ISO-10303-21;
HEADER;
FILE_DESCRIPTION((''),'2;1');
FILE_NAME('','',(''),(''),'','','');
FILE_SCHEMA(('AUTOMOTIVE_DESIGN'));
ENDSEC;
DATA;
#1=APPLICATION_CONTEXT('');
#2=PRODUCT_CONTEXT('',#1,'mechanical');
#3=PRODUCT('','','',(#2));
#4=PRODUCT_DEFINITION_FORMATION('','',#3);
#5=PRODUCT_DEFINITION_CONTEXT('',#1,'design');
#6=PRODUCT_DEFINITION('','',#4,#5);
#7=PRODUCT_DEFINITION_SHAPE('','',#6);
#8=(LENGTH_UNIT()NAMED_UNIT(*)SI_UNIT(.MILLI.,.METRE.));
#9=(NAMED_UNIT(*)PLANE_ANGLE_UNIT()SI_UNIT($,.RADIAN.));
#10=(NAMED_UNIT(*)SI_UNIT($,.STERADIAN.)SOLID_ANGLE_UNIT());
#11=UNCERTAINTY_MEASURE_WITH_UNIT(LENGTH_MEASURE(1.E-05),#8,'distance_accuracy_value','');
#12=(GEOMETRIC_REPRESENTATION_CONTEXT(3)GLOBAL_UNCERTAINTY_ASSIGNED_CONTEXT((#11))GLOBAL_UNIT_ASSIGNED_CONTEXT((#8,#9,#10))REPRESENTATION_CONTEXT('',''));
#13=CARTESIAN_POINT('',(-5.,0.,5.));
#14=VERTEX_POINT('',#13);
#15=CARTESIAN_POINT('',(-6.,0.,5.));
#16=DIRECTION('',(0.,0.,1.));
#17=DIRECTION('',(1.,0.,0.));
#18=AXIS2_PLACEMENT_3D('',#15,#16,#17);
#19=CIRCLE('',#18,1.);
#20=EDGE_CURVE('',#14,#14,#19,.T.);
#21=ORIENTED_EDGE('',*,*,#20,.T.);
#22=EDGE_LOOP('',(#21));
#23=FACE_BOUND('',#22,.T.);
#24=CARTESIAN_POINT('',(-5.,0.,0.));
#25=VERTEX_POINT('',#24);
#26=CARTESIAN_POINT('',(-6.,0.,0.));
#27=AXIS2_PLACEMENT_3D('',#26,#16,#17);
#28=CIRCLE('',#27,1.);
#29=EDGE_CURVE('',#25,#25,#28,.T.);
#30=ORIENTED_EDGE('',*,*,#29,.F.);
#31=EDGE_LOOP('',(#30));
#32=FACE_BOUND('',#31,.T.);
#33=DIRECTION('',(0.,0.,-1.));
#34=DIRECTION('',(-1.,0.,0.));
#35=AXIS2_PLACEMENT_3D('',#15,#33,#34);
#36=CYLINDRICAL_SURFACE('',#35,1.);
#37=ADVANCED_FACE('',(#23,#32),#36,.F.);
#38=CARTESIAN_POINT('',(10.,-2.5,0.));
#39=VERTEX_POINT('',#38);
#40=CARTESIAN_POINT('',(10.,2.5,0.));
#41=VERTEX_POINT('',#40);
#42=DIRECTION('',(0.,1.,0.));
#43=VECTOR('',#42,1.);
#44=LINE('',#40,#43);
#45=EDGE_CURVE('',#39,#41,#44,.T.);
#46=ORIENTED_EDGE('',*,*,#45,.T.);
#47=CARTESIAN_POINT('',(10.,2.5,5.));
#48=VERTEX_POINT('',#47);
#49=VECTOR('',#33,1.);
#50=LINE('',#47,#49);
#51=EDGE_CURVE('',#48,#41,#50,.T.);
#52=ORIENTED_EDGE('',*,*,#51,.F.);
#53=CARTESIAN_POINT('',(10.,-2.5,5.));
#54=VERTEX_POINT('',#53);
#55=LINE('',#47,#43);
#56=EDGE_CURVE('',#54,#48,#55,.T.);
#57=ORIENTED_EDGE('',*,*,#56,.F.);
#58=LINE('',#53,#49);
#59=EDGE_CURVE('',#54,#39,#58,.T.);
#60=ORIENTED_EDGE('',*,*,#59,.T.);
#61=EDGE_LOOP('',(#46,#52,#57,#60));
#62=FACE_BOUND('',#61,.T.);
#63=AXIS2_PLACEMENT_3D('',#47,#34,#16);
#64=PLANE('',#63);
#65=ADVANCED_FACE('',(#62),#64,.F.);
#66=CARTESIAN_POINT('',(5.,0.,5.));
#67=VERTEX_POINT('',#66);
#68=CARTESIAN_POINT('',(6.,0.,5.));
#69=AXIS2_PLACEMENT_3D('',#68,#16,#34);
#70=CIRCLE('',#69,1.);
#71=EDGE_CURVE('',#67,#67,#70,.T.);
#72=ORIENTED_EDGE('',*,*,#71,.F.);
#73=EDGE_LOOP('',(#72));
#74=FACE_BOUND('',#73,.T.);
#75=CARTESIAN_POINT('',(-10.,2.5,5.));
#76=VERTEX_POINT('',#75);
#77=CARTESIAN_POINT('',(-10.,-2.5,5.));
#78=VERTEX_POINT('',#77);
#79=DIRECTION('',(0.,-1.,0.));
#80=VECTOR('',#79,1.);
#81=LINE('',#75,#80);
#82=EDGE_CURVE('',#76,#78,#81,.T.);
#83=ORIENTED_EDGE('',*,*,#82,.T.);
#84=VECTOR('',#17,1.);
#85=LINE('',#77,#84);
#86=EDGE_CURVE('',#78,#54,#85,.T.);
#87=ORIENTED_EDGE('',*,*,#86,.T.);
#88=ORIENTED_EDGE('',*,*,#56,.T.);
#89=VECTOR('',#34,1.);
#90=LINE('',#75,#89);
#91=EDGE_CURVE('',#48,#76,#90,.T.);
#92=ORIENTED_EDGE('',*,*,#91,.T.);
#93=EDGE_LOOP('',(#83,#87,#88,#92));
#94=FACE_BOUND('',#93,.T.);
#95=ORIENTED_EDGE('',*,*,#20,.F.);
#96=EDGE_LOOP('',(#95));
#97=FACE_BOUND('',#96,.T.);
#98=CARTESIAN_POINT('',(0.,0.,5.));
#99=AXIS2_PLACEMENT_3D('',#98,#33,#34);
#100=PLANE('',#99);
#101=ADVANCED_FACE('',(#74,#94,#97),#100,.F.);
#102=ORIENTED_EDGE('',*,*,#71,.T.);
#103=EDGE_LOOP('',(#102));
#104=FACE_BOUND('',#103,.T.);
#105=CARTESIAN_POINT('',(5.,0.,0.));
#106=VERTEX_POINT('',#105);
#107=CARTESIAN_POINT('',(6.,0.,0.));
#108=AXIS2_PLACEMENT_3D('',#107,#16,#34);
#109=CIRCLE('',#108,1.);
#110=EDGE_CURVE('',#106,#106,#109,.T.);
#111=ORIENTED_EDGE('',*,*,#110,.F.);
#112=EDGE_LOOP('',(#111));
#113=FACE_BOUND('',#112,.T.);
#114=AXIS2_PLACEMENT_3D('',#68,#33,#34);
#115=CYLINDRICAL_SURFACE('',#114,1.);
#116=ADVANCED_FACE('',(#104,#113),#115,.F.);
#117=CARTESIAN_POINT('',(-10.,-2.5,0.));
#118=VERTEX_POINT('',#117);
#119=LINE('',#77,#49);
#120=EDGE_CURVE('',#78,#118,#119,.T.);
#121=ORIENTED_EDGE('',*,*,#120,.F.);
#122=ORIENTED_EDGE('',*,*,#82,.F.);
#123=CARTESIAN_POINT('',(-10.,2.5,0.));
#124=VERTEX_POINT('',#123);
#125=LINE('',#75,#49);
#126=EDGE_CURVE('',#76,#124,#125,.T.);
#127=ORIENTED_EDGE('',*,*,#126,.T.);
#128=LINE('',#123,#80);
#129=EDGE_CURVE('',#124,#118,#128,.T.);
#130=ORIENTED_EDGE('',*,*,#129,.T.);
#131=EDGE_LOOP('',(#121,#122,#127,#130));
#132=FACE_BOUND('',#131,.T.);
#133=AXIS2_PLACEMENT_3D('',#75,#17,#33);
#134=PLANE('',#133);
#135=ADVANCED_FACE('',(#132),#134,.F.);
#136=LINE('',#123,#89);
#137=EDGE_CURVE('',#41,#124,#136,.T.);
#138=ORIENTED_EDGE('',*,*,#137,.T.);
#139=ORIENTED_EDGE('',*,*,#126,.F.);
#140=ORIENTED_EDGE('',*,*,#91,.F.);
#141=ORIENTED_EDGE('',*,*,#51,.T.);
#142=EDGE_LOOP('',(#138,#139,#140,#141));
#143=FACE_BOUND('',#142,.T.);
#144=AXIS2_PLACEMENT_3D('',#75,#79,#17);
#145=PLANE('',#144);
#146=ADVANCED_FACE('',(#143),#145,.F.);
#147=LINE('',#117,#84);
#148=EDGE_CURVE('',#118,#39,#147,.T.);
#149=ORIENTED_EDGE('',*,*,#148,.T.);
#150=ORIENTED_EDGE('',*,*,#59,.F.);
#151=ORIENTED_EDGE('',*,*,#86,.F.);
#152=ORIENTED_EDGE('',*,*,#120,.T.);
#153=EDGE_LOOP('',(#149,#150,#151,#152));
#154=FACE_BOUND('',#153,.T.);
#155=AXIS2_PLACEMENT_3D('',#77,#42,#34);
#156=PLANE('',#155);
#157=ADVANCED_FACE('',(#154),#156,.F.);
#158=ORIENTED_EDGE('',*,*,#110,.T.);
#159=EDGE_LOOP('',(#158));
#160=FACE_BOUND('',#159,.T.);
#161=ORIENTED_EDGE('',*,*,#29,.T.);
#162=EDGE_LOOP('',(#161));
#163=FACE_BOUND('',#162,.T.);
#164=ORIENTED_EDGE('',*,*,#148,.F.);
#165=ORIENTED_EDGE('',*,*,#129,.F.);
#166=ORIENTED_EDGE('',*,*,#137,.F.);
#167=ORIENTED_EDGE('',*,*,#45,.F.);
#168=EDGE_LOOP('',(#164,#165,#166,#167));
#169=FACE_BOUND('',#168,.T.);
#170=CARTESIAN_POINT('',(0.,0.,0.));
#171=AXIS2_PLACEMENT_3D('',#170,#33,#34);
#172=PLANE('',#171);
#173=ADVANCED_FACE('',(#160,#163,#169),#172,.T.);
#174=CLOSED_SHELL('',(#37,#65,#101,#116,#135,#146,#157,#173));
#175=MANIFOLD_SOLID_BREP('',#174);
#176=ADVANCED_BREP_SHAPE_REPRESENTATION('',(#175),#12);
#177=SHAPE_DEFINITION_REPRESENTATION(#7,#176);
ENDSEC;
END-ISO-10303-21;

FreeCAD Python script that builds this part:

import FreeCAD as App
import Part
import Sketcher
from FreeCAD import Vector
Q = App.Units.Quantity


def add_polygon(sketch, points):
    """Adds a closed chain of lines whose ends are joined by coincident constraints."""
    first, n = sketch.GeometryCount, len(points)
    for a, b in zip(points, points[1:] + points[:1]):
        sketch.addGeometry(Part.LineSegment(App.Vector(*a, 0), App.Vector(*b, 0)), False)
    for i in range(n):
        sketch.addConstraint(Sketcher.Constraint("Coincident", first + i, 2, first + (i + 1) % n, 1))

doc = App.newDocument("Part")
body = doc.addObject("PartDesign::Body", "Body")

# Sketch on XY plane
sketch1 = body.newObject("Sketcher::SketchObject", "Sketch")
sketch1.AttachmentSupport = (doc.getObject("XY_Plane"), [""])
sketch1.MapMode = "FlatFace"
add_polygon(sketch1, [(-10, 2.5), (-10, -2.5), (10, -2.5), (10, 2.5)])  # lines 0-3
sketch1.addGeometry(Part.Circle(Vector(-6, 0, 0), Vector(0, 0, 1), 1), False)  # 4
sketch1.addGeometry(Part.Circle(Vector(6, 0, 0), Vector(0, 0, 1), 1), False)  # 5
sketch1.addConstraint(Sketcher.Constraint("Vertical", 0))
sketch1.addConstraint(Sketcher.Constraint("Horizontal", 1))
sketch1.addConstraint(Sketcher.Constraint("Vertical", 2))
sketch1.addConstraint(Sketcher.Constraint("Horizontal", 3))
sketch1.addConstraint(Sketcher.Constraint("Equal", 4, 5))
sketch1.addConstraint(Sketcher.Constraint("Symmetric", 4, 3, 5, 3, -1, 1))
sketch1.addConstraint(Sketcher.Constraint("Symmetric", 0, 2, 2, 2, -1, 1))
sketch1.addConstraint(Sketcher.Constraint("PointOnObject", 4, 3, -1))
sketch1.addConstraint(Sketcher.Constraint("Diameter", 4, Q("2 mm")))
sketch1.addConstraint(Sketcher.Constraint("DistanceX", 1, 1, 1, 2, Q("20 mm")))
sketch1.addConstraint(Sketcher.Constraint("DistanceY", 0, 2, 0, 1, Q("5 mm")))
sketch1.addConstraint(Sketcher.Constraint("DistanceX", 4, 3, -1, 1, Q("6 mm")))
pad1 = body.newObject("PartDesign::Pad", "Pad")
pad1.Profile = sketch1
pad1.Length = 5

doc.recompute()
